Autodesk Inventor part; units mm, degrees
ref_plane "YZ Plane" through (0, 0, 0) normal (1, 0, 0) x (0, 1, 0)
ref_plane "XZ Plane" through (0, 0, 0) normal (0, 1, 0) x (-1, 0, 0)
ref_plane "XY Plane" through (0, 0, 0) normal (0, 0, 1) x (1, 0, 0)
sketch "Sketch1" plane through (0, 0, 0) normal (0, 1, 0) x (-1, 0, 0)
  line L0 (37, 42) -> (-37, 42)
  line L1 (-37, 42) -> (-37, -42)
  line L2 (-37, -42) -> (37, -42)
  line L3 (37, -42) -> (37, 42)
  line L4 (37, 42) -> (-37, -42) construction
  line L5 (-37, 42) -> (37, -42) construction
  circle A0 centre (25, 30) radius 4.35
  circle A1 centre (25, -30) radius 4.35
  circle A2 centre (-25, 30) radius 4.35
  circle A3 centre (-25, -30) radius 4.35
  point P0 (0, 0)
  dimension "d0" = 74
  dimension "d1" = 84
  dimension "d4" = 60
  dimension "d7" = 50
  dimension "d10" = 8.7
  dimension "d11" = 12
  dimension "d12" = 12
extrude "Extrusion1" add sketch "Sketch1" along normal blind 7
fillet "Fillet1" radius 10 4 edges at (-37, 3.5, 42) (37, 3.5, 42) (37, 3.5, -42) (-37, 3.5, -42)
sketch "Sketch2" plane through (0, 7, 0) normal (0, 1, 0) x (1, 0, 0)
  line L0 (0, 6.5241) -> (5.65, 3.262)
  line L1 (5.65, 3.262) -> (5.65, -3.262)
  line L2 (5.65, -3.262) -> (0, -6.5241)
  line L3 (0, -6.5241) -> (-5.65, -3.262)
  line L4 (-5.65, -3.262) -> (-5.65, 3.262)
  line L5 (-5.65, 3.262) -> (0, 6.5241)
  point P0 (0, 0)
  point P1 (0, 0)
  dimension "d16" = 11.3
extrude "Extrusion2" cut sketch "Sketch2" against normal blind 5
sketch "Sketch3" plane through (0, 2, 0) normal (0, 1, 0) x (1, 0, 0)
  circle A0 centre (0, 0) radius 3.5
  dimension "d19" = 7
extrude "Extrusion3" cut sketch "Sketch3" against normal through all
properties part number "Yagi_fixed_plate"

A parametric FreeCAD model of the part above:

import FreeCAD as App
import Part
import Sketcher
Q = App.Units.Quantity


def edges_at(feature, points):
    """Names of the edges that pass closest to the given points."""
    edges = feature.Shape.Edges
    near = lambda p: min(range(len(edges)), key=lambda i: edges[i].distToShape(Part.Vertex(*p))[0])
    return sorted({f"Edge{near(p) + 1}" for p in points})


def add_polygon(sketch, points):
    """Adds a closed chain of lines whose ends are joined by coincident constraints."""
    first, n = sketch.GeometryCount, len(points)
    for a, b in zip(points, points[1:] + points[:1]):
        sketch.addGeometry(Part.LineSegment(App.Vector(*a, 0), App.Vector(*b, 0)), False)
    for i in range(n):
        sketch.addConstraint(Sketcher.Constraint("Coincident", first + i, 2, first + (i + 1) % n, 1))

doc = App.newDocument("Part")
body = doc.addObject("PartDesign::Body", "Body")

# Sketch on XZ plane
sketch1 = body.newObject("Sketcher::SketchObject", "Sketch")
sketch1.AttachmentSupport = (doc.getObject("XZ_Plane"), [""])
sketch1.MapMode = "FlatFace"
add_polygon(sketch1, [(-37, -42), (-37, 42), (37, 42), (37, -42)])  # lines 0-3
sketch1.addGeometry(Part.Circle(App.Vector(25, -30, 0), App.Vector(0, 0, 1), 4.3), False)  # 4
sketch1.addGeometry(Part.Circle(App.Vector(-25, -30, 0), App.Vector(0, 0, 1), 4.3), False)  # 5
sketch1.addGeometry(Part.Circle(App.Vector(25, 30, 0), App.Vector(0, 0, 1), 4.3), False)  # 6
sketch1.addGeometry(Part.Circle(App.Vector(-25, 30, 0), App.Vector(0, 0, 1), 4.3), False)  # 7
sketch1.addConstraint(Sketcher.Constraint("Vertical", 0))
sketch1.addConstraint(Sketcher.Constraint("Horizontal", 1))
sketch1.addConstraint(Sketcher.Constraint("Vertical", 2))
sketch1.addConstraint(Sketcher.Constraint("Horizontal", 3))
sketch1.addConstraint(Sketcher.Constraint("Equal", 4, 5))
sketch1.addConstraint(Sketcher.Constraint("Equal", 5, 6))
sketch1.addConstraint(Sketcher.Constraint("Equal", 6, 7))
sketch1.addConstraint(Sketcher.Constraint("Symmetric", 5, 3, 6, 3, -1, 1))
sketch1.addConstraint(Sketcher.Constraint("Symmetric", 4, 3, 7, 3, -1, 1))
sketch1.addConstraint(Sketcher.Constraint("Symmetric", 0, 2, 2, 2, -1, 1))
sketch1.addConstraint(Sketcher.Constraint("Symmetric", 4, 3, 5, 3, -2))
sketch1.addConstraint(Sketcher.Constraint("Diameter", 4, 8.7))
sketch1.addConstraint(Sketcher.Constraint("DistanceX", 1, 1, 1, 2, 74.0))
sketch1.addConstraint(Sketcher.Constraint("DistanceY", 0, 1, 0, 2, 84.0))
sketch1.addConstraint(Sketcher.Constraint("DistanceX", 5, 3, 4, 3, 50.0))
sketch1.addConstraint(Sketcher.Constraint("DistanceY", 4, 3, 6, 3, 60.0))
pad1 = body.newObject("PartDesign::Pad", "Pad")
pad1.Profile = sketch1
pad1.Length = 7
pad1.Reversed = True
doc.recompute()

fillet = body.newObject("PartDesign::Fillet", "Fillet")
fillet.Base = (pad1, edges_at(pad1, [
    (-37, 3.5, 42),
    (37, 3.5, 42),
    (37, 3.5, -42),
    (-37, 3.5, -42),
]))
fillet.Radius = 10

# Sketch on XZ plane
sketch2 = body.newObject("Sketcher::SketchObject", "Sketch001")
sketch2.AttachmentSupport = (doc.getObject("XZ_Plane"), [""])
sketch2.MapMode = "FlatFace"
sketch2.AttachmentOffset = App.Placement(App.Vector(0, 0, -7), App.Rotation())
add_polygon(sketch2, [(6, -3), (0, -7), (-6, -3), (-6, 3), (0, 7), (6, 3)])  # lines 0-5
sketch2.addConstraint(Sketcher.Constraint("Vertical", 2))
sketch2.addConstraint(Sketcher.Constraint("Vertical", 5))
sketch2.addConstraint(Sketcher.Constraint("Symmetric", 0, 2, 3, 2, -1, 1))
sketch2.addConstraint(Sketcher.Constraint("Symmetric", 1, 2, 4, 2, -1, 1))
sketch2.addConstraint(Sketcher.Constraint("PointOnObject", 0, 2, -2))
sketch2.addConstraint(Sketcher.Constraint("Parallel", 0, 3))
sketch2.addConstraint(Sketcher.Constraint("Horizontal", 2, 2, 4, 2))
sketch2.addConstraint(Sketcher.Constraint("DistanceX", 2, 2, 4, 2, 11.3))
sketch2.addConstraint(Sketcher.Constraint("Angle", 0, Q("-149.9995 deg")))
sketch2.addConstraint(Sketcher.Constraint("DistanceY", 2, 1, 2, 2, 6.524))
pocket1 = body.newObject("PartDesign::Pocket", "Pocket")
pocket1.Profile = sketch2
pocket1.Length = 5
pocket1.Reversed = True

# Sketch on XZ plane
sketch3 = body.newObject("Sketcher::SketchObject", "Sketch002")
sketch3.AttachmentSupport = (doc.getObject("XZ_Plane"), [""])
sketch3.MapMode = "FlatFace"
sketch3.AttachmentOffset = App.Placement(App.Vector(0, 0, -2), App.Rotation())
sketch3.addGeometry(Part.Circle(App.Vector(0, 0, 0), App.Vector(0, 0, 1), 3.5), False)
sketch3.addConstraint(Sketcher.Constraint("Coincident", 0, 3, -1, 1))
sketch3.addConstraint(Sketcher.Constraint("Diameter", 0, 7.0))
pocket2 = body.newObject("PartDesign::Pocket", "Pocket001")
pocket2.Profile = sketch3
pocket2.Type = "ThroughAll"
pocket2.Reversed = True

doc.recompute()
